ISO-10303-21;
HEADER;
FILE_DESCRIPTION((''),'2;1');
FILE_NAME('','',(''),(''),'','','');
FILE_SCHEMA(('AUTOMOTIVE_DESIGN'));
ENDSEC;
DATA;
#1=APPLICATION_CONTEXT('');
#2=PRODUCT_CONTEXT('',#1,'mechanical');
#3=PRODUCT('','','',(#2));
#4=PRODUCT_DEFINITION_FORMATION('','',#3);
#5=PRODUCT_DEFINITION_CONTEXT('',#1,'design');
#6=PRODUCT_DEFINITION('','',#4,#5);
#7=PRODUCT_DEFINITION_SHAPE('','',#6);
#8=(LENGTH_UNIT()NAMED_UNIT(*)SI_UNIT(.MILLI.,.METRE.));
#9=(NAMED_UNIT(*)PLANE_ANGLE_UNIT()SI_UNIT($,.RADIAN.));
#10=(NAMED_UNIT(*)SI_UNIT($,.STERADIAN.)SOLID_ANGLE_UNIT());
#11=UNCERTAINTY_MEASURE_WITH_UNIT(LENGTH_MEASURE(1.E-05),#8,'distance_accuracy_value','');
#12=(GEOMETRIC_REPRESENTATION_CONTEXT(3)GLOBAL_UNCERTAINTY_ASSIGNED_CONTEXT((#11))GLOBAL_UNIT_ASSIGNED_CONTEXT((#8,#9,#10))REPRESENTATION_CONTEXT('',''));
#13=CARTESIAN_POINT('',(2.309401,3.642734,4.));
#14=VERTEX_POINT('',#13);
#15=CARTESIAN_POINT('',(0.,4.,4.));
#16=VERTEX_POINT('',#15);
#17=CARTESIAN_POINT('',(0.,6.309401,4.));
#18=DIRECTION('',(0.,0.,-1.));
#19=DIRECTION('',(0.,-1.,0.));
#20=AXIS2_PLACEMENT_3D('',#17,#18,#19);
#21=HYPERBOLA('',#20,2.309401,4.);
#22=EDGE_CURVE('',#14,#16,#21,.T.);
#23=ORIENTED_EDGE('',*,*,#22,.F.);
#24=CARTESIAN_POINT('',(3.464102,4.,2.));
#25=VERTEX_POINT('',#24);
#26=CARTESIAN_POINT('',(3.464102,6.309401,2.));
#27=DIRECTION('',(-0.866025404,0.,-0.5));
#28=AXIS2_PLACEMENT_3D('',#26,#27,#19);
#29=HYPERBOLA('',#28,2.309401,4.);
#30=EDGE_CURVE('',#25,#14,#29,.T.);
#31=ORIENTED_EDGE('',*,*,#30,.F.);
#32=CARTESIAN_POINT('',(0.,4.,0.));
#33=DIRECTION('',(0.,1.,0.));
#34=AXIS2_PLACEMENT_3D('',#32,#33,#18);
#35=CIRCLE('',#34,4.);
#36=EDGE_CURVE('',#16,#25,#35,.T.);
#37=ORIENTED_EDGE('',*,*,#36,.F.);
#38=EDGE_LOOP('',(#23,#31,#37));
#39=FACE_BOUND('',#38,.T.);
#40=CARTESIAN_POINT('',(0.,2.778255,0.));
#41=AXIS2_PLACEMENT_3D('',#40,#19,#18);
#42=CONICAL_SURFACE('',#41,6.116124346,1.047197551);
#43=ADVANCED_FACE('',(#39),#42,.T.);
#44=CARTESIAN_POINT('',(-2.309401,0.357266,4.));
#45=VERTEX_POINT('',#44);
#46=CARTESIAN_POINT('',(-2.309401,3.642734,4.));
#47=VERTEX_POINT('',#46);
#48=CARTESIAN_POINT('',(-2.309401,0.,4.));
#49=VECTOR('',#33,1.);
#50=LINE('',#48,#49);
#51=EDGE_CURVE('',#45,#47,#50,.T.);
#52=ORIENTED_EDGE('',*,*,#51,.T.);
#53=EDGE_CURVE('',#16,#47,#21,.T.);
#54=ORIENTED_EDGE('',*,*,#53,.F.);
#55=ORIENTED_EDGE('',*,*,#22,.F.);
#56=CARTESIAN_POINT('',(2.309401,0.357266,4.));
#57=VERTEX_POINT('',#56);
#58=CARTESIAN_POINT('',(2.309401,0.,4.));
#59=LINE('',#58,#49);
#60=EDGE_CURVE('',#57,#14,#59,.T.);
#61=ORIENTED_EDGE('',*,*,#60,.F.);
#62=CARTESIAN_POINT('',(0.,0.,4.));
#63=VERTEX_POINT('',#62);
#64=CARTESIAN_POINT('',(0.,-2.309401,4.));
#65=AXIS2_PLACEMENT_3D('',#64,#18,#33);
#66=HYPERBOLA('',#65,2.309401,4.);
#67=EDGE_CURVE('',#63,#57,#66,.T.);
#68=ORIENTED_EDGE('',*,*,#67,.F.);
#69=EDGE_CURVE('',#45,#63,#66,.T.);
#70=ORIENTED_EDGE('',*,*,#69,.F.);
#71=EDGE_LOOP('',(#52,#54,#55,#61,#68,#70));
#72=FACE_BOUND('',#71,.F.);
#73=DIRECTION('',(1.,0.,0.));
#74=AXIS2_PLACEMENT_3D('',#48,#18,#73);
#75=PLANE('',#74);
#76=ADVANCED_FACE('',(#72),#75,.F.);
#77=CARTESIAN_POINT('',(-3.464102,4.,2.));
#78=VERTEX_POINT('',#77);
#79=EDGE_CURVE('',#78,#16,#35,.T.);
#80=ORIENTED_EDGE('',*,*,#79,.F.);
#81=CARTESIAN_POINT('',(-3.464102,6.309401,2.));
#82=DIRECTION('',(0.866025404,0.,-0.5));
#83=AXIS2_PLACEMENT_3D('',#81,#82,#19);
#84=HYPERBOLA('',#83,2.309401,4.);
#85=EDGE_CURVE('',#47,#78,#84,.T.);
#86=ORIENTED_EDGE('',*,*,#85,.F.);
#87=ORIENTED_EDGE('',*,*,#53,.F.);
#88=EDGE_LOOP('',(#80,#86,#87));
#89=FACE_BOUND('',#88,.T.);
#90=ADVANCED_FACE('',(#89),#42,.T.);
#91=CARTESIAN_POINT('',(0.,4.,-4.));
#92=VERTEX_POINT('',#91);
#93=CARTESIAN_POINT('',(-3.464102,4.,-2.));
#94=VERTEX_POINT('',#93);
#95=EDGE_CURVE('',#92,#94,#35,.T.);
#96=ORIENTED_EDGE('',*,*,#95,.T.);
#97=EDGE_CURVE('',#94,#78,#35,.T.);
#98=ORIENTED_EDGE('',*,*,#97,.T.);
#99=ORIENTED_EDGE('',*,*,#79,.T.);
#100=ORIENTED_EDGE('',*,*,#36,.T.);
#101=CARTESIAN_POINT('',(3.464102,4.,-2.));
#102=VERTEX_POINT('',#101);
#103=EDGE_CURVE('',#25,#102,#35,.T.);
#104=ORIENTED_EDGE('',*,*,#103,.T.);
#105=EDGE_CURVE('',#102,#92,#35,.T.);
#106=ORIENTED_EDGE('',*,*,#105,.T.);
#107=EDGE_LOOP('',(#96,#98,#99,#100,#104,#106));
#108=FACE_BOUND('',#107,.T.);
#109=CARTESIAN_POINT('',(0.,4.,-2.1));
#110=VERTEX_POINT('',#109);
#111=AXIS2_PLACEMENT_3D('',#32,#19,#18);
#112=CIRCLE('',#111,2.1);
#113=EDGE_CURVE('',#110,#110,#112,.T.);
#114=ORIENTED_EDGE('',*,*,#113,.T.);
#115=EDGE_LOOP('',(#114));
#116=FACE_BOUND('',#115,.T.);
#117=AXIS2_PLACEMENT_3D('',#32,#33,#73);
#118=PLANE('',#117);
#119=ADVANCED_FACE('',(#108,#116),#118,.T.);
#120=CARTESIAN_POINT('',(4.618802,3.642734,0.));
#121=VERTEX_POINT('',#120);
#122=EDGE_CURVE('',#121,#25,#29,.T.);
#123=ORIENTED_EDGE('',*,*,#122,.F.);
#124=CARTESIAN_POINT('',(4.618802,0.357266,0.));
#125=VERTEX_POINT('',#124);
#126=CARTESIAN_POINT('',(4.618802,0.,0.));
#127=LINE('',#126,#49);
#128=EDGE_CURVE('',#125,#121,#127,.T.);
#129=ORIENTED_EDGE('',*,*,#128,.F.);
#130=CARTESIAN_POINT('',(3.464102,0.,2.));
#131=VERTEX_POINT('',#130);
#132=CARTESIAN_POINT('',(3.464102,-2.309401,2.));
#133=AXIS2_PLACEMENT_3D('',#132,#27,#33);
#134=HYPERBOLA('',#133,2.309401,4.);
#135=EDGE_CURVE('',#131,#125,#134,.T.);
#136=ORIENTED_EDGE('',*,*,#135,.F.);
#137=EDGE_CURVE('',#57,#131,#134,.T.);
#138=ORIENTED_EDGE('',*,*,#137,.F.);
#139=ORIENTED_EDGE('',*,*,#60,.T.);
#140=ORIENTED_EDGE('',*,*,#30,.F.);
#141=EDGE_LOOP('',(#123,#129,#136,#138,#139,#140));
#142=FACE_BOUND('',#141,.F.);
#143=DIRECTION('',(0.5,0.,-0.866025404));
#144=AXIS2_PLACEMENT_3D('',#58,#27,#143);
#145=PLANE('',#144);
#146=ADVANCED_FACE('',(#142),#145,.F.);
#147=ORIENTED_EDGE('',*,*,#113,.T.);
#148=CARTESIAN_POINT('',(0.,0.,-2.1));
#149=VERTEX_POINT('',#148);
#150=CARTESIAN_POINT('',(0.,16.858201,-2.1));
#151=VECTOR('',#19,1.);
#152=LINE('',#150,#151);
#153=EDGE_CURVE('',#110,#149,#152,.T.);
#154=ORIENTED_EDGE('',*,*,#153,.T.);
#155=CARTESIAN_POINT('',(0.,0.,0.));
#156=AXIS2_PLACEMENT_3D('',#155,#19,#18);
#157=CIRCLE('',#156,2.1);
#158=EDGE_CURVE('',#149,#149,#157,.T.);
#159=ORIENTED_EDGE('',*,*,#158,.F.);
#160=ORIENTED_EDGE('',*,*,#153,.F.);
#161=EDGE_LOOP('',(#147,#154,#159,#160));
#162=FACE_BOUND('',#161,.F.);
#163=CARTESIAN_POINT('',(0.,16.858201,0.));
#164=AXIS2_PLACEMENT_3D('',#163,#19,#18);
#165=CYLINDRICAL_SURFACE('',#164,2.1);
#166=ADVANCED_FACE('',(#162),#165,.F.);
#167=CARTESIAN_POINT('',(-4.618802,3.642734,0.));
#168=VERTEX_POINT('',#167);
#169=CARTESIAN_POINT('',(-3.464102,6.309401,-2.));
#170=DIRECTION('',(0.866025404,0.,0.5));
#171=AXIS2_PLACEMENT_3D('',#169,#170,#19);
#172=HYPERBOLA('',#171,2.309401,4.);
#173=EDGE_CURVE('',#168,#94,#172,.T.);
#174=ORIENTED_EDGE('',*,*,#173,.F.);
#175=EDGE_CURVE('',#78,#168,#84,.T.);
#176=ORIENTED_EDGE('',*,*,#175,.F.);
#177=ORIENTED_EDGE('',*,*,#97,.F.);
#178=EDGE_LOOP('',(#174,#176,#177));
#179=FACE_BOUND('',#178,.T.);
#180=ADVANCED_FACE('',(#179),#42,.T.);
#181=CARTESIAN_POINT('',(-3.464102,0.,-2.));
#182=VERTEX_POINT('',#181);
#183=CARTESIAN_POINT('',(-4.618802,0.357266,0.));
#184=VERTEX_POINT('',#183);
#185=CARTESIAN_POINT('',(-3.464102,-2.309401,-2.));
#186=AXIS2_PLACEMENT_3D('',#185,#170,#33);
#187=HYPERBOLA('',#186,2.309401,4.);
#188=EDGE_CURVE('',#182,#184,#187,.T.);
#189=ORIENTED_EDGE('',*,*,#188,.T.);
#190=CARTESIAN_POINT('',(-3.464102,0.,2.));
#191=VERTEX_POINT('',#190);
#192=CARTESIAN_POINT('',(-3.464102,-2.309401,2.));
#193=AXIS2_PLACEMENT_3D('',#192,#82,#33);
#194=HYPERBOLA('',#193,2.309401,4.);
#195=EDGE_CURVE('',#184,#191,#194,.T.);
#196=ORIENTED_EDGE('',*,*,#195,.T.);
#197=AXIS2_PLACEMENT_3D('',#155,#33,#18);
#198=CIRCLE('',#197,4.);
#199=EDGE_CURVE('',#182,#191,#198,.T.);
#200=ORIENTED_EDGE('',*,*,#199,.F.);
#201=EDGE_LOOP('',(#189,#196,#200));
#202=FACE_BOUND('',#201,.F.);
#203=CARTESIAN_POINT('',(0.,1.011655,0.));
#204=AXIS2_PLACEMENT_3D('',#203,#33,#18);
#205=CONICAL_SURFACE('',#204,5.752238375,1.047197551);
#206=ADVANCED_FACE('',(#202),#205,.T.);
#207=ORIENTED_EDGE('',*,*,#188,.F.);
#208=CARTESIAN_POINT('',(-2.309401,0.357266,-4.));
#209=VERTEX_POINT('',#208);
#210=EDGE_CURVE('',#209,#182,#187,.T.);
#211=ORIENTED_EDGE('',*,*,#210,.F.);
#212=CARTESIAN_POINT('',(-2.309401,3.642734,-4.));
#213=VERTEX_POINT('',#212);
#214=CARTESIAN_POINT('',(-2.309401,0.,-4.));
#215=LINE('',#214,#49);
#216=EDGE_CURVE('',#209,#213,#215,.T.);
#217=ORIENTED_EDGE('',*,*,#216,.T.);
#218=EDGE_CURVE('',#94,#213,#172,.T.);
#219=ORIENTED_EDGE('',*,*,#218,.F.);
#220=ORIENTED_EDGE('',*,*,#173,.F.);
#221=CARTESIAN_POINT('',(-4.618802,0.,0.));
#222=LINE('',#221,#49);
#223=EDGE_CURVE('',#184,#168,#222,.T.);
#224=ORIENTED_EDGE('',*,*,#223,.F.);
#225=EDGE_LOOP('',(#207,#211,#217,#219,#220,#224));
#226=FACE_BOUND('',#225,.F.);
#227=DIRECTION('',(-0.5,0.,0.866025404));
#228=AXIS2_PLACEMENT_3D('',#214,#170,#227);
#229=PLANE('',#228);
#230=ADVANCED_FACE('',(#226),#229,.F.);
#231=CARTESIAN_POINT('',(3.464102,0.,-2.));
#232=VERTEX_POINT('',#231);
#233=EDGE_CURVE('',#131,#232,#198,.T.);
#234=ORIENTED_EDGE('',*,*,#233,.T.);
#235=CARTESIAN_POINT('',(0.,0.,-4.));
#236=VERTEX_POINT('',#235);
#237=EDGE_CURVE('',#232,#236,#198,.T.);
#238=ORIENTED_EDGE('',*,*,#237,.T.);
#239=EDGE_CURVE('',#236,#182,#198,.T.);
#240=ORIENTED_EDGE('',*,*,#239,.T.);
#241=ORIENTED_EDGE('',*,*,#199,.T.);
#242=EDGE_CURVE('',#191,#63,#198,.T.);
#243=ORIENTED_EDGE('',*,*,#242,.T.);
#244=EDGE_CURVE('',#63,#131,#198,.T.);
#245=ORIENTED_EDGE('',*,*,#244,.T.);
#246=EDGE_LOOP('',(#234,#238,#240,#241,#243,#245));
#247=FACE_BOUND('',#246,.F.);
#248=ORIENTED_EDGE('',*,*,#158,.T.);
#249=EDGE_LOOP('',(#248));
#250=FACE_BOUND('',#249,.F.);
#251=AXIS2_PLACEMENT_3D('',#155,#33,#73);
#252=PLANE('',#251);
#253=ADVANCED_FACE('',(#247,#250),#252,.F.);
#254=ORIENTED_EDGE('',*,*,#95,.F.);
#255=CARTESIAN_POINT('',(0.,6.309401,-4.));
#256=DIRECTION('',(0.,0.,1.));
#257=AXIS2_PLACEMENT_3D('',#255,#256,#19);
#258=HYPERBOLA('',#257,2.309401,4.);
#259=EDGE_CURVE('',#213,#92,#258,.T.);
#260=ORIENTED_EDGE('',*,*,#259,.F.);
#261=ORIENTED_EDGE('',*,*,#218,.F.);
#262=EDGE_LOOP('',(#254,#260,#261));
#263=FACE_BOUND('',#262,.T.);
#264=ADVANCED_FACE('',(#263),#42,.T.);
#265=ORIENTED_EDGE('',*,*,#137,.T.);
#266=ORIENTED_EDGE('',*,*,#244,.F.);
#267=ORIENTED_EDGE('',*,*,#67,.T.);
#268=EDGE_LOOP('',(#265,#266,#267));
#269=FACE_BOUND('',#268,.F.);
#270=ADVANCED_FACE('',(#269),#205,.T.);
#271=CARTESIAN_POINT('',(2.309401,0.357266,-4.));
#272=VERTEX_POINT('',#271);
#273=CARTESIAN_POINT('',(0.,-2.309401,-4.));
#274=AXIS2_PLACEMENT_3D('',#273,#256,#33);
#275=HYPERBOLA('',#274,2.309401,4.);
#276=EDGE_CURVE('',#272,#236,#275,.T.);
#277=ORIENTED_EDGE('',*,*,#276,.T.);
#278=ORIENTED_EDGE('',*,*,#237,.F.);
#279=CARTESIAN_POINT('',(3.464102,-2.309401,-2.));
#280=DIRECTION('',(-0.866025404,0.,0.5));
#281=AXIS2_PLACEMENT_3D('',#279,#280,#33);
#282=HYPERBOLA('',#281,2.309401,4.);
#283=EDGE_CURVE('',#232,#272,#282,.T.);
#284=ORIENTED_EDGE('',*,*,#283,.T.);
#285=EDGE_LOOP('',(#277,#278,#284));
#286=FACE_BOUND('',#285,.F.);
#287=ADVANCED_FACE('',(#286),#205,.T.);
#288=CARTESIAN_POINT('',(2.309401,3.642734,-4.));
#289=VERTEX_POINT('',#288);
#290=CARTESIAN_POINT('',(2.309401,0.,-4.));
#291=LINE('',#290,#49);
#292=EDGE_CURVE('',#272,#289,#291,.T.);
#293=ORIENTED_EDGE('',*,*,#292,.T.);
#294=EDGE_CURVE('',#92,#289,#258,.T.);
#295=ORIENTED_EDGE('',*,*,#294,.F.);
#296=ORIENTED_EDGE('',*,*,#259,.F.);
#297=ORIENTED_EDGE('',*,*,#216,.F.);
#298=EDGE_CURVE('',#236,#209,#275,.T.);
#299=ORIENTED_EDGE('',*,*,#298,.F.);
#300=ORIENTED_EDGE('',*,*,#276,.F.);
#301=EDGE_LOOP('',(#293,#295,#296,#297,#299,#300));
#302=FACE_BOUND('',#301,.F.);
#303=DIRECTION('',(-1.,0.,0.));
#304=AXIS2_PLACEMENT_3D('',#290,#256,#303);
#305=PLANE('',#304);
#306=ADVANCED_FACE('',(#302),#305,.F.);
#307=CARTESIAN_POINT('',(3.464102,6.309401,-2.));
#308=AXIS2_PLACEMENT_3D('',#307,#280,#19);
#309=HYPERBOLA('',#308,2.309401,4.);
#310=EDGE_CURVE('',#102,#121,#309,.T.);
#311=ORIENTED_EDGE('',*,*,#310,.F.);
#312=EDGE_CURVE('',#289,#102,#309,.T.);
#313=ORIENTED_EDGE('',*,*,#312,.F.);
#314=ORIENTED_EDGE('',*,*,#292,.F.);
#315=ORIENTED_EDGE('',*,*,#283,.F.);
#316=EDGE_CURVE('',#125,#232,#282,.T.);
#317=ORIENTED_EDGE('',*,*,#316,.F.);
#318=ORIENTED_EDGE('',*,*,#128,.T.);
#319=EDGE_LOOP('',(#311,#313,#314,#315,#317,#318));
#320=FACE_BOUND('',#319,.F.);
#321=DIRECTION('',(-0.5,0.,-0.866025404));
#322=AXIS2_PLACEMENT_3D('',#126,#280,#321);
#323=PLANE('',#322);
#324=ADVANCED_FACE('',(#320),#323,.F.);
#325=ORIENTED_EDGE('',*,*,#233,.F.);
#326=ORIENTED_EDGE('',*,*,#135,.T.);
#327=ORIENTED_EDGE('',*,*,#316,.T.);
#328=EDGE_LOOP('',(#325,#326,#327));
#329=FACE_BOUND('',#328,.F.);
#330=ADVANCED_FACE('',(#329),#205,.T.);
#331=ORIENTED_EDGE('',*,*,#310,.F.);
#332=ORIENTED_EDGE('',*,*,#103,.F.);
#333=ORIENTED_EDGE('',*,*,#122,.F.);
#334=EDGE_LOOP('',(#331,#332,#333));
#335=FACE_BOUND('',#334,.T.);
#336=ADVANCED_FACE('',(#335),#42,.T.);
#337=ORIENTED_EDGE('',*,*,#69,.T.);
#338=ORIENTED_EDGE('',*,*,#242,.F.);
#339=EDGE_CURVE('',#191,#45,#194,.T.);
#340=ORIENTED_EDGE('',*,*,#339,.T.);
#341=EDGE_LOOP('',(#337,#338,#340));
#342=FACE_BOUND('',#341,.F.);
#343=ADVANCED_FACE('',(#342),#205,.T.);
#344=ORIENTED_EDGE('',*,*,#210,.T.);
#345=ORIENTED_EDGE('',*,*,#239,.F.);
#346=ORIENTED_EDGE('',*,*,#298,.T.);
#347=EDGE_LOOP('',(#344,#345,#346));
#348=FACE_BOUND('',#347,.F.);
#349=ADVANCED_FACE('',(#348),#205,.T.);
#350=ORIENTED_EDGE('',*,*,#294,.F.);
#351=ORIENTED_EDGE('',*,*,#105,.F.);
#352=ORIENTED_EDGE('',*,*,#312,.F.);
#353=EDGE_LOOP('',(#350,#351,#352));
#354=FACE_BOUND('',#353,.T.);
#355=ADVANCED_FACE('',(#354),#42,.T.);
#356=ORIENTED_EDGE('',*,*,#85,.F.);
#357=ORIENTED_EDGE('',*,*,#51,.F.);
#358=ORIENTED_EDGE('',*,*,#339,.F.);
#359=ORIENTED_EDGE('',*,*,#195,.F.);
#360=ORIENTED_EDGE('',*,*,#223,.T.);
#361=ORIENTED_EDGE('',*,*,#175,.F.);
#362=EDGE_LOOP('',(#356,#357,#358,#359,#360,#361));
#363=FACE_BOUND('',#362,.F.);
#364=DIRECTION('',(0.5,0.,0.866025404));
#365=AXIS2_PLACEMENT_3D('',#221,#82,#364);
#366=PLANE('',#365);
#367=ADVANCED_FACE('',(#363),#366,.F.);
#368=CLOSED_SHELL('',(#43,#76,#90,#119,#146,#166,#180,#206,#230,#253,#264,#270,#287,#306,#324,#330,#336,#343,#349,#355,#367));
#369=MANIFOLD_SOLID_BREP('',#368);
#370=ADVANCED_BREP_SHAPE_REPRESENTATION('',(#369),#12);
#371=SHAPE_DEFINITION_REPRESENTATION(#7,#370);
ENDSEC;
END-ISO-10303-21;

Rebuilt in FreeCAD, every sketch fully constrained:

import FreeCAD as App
import Part
import Sketcher
Q = App.Units.Quantity

doc = App.newDocument("Part")
params = doc.addObject("Spreadsheet::Sheet", "Params")
for row, (alias, value) in enumerate([
    ("pad1_length", "4 mm"),
    ("groove_angle", "360 deg"),
    ("sketch3_diameter", "4.2 mm"),
    ("hole_diameter", "4.2 mm"),
], start=1):
    params.set(f"A{row}", alias)
    params.set(f"B{row}", "=" + value)
    params.setAlias(f"B{row}", alias)

body = doc.addObject("PartDesign::Body", "Body")

# Sketch on XZ plane
sketch1 = doc.addObject("Sketcher::SketchObject", "Sketch")
body.addObject(sketch1)
sketch1.AttachmentSupport = (doc.XZ_Plane, [""])
sketch1.MapMode = "FlatFace"
sketch1.addGeometry([
    Part.LineSegment(App.Vector(-2.3, 4, 0), App.Vector(2.3, 4, 0)),  # 0
    Part.LineSegment(App.Vector(2.3, 4, 0), App.Vector(4.6, 0, 0)),  # 1
    Part.LineSegment(App.Vector(4.6, 0, 0), App.Vector(2.3, -4, 0)),  # 2
    Part.LineSegment(App.Vector(2.3, -4, 0), App.Vector(-2.3, -4, 0)),  # 3
    Part.LineSegment(App.Vector(-2.3, -4, 0), App.Vector(-4.6, 0, 0)),  # 4
    Part.LineSegment(App.Vector(-4.6, 0, 0), App.Vector(-2.3, 4, 0)),  # 5
], False)
sketch1.addConstraint([
    Sketcher.Constraint("Coincident", 0, 2, 1, 1),
    Sketcher.Constraint("Coincident", 1, 2, 2, 1),
    Sketcher.Constraint("Coincident", 2, 2, 3, 1),
    Sketcher.Constraint("Coincident", 3, 2, 4, 1),
    Sketcher.Constraint("Coincident", 4, 2, 5, 1),
    Sketcher.Constraint("Coincident", 5, 2, 0, 1),
    Sketcher.Constraint("Horizontal", 0),
    Sketcher.Constraint("Horizontal", 3),
    Sketcher.Constraint("Symmetric", 0, 2, 3, 2, -1, 1),
    Sketcher.Constraint("Symmetric", 1, 2, 4, 2, -1, 1),
    Sketcher.Constraint("PointOnObject", 1, 2, -1),
    Sketcher.Constraint("Parallel", 2, 5),
    Sketcher.Constraint("Vertical", 0, 2, 2, 2),
    Sketcher.Constraint("Angle", 1, Q("-60 deg")),
    Sketcher.Constraint("DistanceY", -1, 1, 0, 2, 4.0),
    Sketcher.Constraint("DistanceX", -1, 1, 0, 2, 2.309401),
])
pad1 = doc.addObject("PartDesign::Pad", "Pad")
body.addObject(pad1)
pad1.Profile = sketch1
pad1.setExpression("Length", "Params.pad1_length")
pad1.Reversed = True

# Sketch on YZ plane
sketch2 = doc.addObject("Sketcher::SketchObject", "Sketch001")
body.addObject(sketch2)
sketch2.AttachmentSupport = (doc.YZ_Plane, [""])
sketch2.MapMode = "FlatFace"
sketch2.addGeometry([
    Part.LineSegment(App.Vector(1, -5.8, 0), App.Vector(0, -4, 0)),  # 0
    Part.LineSegment(App.Vector(0, -4, 0), App.Vector(0, -5.8, 0)),  # 1
    Part.LineSegment(App.Vector(0, -5.8, 0), App.Vector(1, -5.8, 0)),  # 2
    Part.LineSegment(App.Vector(4, -6.1, 0), App.Vector(4, -4, 0)),  # 3
    Part.LineSegment(App.Vector(4, -4, 0), App.Vector(2.8, -6.1, 0)),  # 4
    Part.LineSegment(App.Vector(2.8, -6.1, 0), App.Vector(4, -6.1, 0)),  # 5
], False)
sketch2.addConstraint([
    Sketcher.Constraint("Coincident", 0, 2, 1, 1),
    Sketcher.Constraint("Coincident", 1, 2, 2, 1),
    Sketcher.Constraint("Coincident", 2, 2, 0, 1),
    Sketcher.Constraint("Coincident", 3, 2, 4, 1),
    Sketcher.Constraint("Coincident", 4, 2, 5, 1),
    Sketcher.Constraint("Coincident", 5, 2, 3, 1),
    Sketcher.Constraint("Vertical", 1),
    Sketcher.Constraint("Horizontal", 2),
    Sketcher.Constraint("Vertical", 3),
    Sketcher.Constraint("Horizontal", 5),
    Sketcher.Constraint("PointOnObject", 0, 2, -2),
    Sketcher.Constraint("Horizontal", 0, 2, 3, 2),
    Sketcher.Constraint("Angle", 0, Q("120 deg")),
    Sketcher.Constraint("Angle", 4, Q("-120 deg")),
    Sketcher.Constraint("DistanceY", 0, 2, -1, 1, 4.0),
    Sketcher.Constraint("DistanceX", -1, 1, 3, 2, 4.0),
    Sketcher.Constraint("DistanceY", 1, 2, 1, 1, 1.752238),
    Sketcher.Constraint("DistanceX", 2, 2, 4, 2, 1.7666),
])
groove = doc.addObject("PartDesign::Groove", "Groove")
body.addObject(groove)
groove.Profile = sketch2
groove.ReferenceAxis = (sketch2, ["H_Axis"])
groove.setExpression("Angle", "Params.groove_angle")

# Sketch on XZ plane
sketch3 = doc.addObject("Sketcher::SketchObject", "Sketch002")
body.addObject(sketch3)
sketch3.AttachmentSupport = (doc.XZ_Plane, [""])
sketch3.MapMode = "FlatFace"
sketch3.AttachmentOffset = App.Placement(App.Vector(0, 0, -4), App.Rotation())
sketch3.addGeometry(Part.Circle(App.Vector(0, 0, 0), App.Vector(0, 0, 1), 2.1), False)
sketch3.addConstraint([
    Sketcher.Constraint("Coincident", 0, 3, -1, 1),
    Sketcher.Constraint("Diameter", 0, 4.2),
])
sketch3.setExpression("Constraints[1]", "Params.sketch3_diameter")
doc.recompute()
hole = doc.addObject("PartDesign::Hole", "Hole")
body.addObject(hole)
hole.Profile = sketch3
hole.ThreadType = "None"
hole.setExpression("Diameter", "Params.hole_diameter")
hole.DepthType = "ThroughAll"
hole.Reversed = True

doc.recompute()
